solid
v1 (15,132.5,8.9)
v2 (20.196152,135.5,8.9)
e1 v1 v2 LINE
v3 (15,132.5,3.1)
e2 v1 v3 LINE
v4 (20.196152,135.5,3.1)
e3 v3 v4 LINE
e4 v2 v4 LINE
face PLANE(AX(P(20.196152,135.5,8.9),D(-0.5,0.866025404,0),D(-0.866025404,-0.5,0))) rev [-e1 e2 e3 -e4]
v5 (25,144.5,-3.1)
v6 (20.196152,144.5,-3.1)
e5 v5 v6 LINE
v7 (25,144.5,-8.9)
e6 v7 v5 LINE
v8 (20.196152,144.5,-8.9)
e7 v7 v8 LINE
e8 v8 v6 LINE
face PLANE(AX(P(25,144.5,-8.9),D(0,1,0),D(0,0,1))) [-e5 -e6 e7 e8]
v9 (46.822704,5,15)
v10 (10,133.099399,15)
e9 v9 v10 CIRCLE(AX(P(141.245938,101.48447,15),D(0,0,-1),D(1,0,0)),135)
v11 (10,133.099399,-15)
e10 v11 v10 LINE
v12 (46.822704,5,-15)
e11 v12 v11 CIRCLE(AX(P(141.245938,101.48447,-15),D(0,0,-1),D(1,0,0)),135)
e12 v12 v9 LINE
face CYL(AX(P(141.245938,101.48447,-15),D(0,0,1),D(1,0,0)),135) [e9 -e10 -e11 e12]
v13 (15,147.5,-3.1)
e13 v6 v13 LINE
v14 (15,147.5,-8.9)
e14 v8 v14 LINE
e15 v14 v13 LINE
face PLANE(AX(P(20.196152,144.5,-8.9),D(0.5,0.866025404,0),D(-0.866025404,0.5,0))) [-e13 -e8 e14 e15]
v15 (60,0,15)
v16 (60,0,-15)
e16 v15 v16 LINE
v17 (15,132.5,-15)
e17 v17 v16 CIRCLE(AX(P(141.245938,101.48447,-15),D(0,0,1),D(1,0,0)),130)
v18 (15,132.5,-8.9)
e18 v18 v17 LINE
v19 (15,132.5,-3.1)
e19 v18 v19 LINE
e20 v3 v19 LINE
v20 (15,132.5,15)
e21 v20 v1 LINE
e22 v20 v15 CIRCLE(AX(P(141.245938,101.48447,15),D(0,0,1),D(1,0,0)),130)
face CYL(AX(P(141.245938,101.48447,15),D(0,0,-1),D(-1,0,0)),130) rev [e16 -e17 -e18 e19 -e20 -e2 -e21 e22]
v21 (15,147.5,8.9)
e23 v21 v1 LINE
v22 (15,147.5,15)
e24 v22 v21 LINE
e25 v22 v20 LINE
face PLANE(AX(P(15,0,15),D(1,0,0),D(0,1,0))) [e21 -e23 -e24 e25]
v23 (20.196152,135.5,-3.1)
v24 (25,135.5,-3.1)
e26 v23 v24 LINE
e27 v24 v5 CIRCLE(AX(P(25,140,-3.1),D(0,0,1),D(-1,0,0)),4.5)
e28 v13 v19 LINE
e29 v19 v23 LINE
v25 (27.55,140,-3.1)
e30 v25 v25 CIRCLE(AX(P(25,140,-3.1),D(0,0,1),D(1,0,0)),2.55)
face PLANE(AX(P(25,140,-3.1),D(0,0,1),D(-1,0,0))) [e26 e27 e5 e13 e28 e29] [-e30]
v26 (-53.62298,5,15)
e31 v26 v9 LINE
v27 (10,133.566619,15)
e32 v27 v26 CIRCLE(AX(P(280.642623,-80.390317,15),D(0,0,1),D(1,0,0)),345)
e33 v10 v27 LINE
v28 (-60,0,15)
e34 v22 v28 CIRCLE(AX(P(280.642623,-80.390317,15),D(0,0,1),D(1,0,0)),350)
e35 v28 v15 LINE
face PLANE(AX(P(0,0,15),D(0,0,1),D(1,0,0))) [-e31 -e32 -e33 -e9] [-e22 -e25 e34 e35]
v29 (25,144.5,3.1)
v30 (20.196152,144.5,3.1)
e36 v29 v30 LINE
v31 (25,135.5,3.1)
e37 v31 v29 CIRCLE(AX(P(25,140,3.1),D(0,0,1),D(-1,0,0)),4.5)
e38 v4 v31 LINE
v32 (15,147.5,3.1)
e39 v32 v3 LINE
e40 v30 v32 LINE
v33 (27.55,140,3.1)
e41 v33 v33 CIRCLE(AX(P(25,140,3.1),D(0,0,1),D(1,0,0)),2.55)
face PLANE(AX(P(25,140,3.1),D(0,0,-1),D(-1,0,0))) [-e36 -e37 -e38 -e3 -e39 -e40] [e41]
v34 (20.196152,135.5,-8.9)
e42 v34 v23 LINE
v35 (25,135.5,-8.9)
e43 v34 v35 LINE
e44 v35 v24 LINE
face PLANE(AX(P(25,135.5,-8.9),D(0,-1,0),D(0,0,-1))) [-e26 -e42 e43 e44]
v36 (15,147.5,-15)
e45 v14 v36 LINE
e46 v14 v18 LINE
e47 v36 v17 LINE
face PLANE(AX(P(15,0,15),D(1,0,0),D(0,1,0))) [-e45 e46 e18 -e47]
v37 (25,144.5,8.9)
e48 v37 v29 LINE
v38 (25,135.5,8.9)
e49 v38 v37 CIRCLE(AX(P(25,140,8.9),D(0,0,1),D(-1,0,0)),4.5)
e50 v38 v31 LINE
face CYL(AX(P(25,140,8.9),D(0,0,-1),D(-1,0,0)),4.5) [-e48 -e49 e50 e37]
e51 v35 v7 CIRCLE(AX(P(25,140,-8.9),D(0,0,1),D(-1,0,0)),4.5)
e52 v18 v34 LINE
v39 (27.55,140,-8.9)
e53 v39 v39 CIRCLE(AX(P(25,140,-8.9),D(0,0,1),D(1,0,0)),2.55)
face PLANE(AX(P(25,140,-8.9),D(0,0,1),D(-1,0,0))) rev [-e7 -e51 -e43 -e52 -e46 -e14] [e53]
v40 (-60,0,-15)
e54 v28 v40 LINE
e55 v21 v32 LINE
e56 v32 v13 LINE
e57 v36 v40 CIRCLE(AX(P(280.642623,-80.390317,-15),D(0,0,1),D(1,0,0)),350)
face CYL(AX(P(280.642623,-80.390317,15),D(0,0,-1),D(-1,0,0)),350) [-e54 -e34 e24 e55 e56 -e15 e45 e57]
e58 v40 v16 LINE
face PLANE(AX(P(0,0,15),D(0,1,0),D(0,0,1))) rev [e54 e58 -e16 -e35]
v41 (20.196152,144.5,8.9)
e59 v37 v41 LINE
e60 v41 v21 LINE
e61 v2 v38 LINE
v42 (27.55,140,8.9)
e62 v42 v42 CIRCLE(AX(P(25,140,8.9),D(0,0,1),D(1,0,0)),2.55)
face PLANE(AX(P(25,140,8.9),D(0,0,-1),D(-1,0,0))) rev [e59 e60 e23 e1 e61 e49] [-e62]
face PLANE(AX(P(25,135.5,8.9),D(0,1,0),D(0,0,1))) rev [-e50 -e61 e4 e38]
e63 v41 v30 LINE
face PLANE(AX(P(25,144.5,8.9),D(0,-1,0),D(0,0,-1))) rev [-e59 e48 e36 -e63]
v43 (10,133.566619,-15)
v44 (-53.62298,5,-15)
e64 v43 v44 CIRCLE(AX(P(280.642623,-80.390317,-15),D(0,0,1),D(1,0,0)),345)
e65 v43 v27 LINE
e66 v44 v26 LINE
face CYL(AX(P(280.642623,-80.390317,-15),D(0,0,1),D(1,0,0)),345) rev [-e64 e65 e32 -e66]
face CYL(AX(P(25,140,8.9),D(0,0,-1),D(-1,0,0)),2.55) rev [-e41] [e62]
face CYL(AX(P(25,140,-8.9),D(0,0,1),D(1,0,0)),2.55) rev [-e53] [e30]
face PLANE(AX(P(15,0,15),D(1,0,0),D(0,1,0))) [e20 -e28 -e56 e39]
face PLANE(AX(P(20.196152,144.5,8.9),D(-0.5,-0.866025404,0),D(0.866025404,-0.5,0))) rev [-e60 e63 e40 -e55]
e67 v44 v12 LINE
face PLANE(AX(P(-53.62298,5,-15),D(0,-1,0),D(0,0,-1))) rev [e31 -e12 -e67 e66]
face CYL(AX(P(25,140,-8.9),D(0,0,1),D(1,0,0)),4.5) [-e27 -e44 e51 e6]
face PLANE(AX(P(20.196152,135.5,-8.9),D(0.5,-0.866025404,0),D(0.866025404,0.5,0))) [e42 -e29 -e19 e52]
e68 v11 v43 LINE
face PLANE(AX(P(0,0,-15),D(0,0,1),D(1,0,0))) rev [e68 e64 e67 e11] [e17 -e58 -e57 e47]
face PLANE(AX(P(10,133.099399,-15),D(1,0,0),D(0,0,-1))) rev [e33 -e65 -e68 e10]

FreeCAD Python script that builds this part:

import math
import FreeCAD as App
import Part
import Sketcher
from FreeCAD import Vector
Q = App.Units.Quantity

doc = App.newDocument("Part")
body = doc.addObject("PartDesign::Body", "Body")

sketch1 = body.newObject("Sketcher::SketchObject", "Sketch")
sketch1.AttachmentSupport = (doc.getObject("XY_Plane"), [""])
sketch1.MapMode = "FlatFace"
sketch1.addGeometry([
    Part.LineSegment(Vector(-60, 0, 0), Vector(60, 0, 0)),
    Part.ArcOfCircle(Part.Circle(Vector(141, 101, 0), Vector(0, 0, 1), 130), math.radians(166), math.radians(231)),
    Part.LineSegment(Vector(15, 132, 0), Vector(15, 148, 0)),
    Part.ArcOfCircle(Part.Circle(Vector(281, -80, 0), Vector(0, 0, 1), 350), math.radians(139), math.radians(167)),
], False)
sketch1.addConstraint([
    Sketcher.Constraint("Coincident", 0, 2, 1, 2),
    Sketcher.Constraint("Coincident", 1, 1, 2, 1),
    Sketcher.Constraint("Coincident", 2, 2, 3, 1),
    Sketcher.Constraint("Coincident", 3, 2, 0, 1),
    Sketcher.Constraint("Horizontal", 0),
    Sketcher.Constraint("Vertical", 2),
    Sketcher.Constraint("Symmetric", 0, 2, 3, 2, -1, 1),
    Sketcher.Constraint("Radius", 1, Q("130 mm")),
    Sketcher.Constraint("Radius", 3, Q("350 mm")),
    Sketcher.Constraint("DistanceX", 0, 1, 0, 2, Q("120 mm")),
    Sketcher.Constraint("DistanceY", 2, 1, 2, 2, Q("15 mm")),
    Sketcher.Constraint("DistanceX", -1, 1, 1, 1, Q("15 mm")),
    Sketcher.Constraint("DistanceY", -1, 1, 1, 1, Q("132.5 mm")),
])
pad1 = body.newObject("PartDesign::Pad", "Pad")
pad1.Profile = sketch1
pad1.Length = 30
pad1.Midplane = True

sketch2 = body.newObject("Sketcher::SketchObject", "Sketch001")
sketch2.AttachmentSupport = (doc.getObject("XY_Plane"), [""])
sketch2.MapMode = "FlatFace"
sketch2.AttachmentOffset = App.Placement(Vector(0, 0, 15), App.Rotation())
sketch2.addGeometry([
    Part.LineSegment(Vector(10, 133.1, 0), Vector(10, 133.57, 0)),
    Part.ArcOfCircle(Part.Circle(Vector(280.64, -80.39, 0), Vector(0, 0, 1), 345), math.radians(142), math.radians(166)),
    Part.LineSegment(Vector(-53.62, 5, 0), Vector(46.82, 5, 0)),
    Part.ArcOfCircle(Part.Circle(Vector(141.25, 101.48, 0), Vector(0, 0, 1), 135), math.radians(166), math.radians(226)),
], False)
sketch2.addConstraint([
    Sketcher.Constraint("Coincident", 0, 2, 1, 1),
    Sketcher.Constraint("Coincident", 1, 2, 2, 1),
    Sketcher.Constraint("Coincident", 2, 2, 3, 2),
    Sketcher.Constraint("Coincident", 3, 1, 0, 1),
    Sketcher.Constraint("Vertical", 0),
    Sketcher.Constraint("Horizontal", 2),
    Sketcher.Constraint("Radius", 1, Q("345 mm")),
    Sketcher.Constraint("Radius", 3, Q("135 mm")),
    Sketcher.Constraint("DistanceX", -1, 1, 0, 2, Q("10 mm")),
    Sketcher.Constraint("DistanceY", -1, 1, 2, 2, Q("5 mm")),
    Sketcher.Constraint("DistanceY", 0, 1, 0, 2, Q("0.46722 mm")),
    Sketcher.Constraint("DistanceY", -1, 1, 3, 1, Q("133.099399 mm")),
    Sketcher.Constraint("DistanceX", 2, 1, 2, 2, Q("100.445684 mm")),
    Sketcher.Constraint("DistanceX", -1, 1, 3, 3, Q("141.245938 mm")),
])
pocket1 = body.newObject("PartDesign::Pocket", "Pocket")
pocket1.Profile = sketch2
pocket1.Type = "ThroughAll"

sketch3 = body.newObject("Sketcher::SketchObject", "Sketch002")
sketch3.AttachmentSupport = (doc.getObject("XY_Plane"), [""])
sketch3.MapMode = "FlatFace"
sketch3.AttachmentOffset = App.Placement(Vector(0, 0, 3.1), App.Rotation())
sketch3.addGeometry([
    Part.LineSegment(Vector(20.2, 135.5, 0), Vector(25, 135.5, 0)),
    Part.ArcOfCircle(Part.Circle(Vector(25, 140, 0), Vector(0, 0, 1), 4.5), math.radians(-90), math.radians(90)),
    Part.LineSegment(Vector(25, 144.5, 0), Vector(20.2, 144.5, 0)),
    Part.LineSegment(Vector(20.2, 144.5, 0), Vector(15, 147.5, 0)),
    Part.LineSegment(Vector(15, 147.5, 0), Vector(15, 132.5, 0)),
    Part.LineSegment(Vector(15, 132.5, 0), Vector(20.2, 135.5, 0)),
    Part.Circle(Vector(25, 140, 0), Vector(0, 0, 1), 2.5),
], False)
sketch3.addConstraint([
    Sketcher.Constraint("Tangent", 0, 2, 1, 1),
    Sketcher.Constraint("Tangent", 1, 2, 2, 1),
    Sketcher.Constraint("Coincident", 2, 2, 3, 1),
    Sketcher.Constraint("Coincident", 3, 2, 4, 1),
    Sketcher.Constraint("Coincident", 4, 2, 5, 1),
    Sketcher.Constraint("Coincident", 5, 2, 0, 1),
    Sketcher.Constraint("Horizontal", 0),
    Sketcher.Constraint("Horizontal", 2),
    Sketcher.Constraint("Vertical", 4),
    Sketcher.Constraint("Coincident", 6, 3, 1, 3),
    Sketcher.Constraint("Vertical", 2, 2, 5, 2),
    Sketcher.Constraint("Equal", 3, 5),
    Sketcher.Constraint("Diameter", 6, Q("5.1 mm")),
    Sketcher.Constraint("Radius", 1, Q("4.5 mm")),
    Sketcher.Constraint("DistanceY", 4, 2, 4, 1, Q("15 mm")),
    Sketcher.Constraint("Angle", 3, Q("150 deg")),
    Sketcher.Constraint("DistanceX", -1, 1, 1, 3, Q("25 mm")),
    Sketcher.Constraint("DistanceY", -1, 1, 1, 3, Q("140 mm")),
    Sketcher.Constraint("DistanceX", -1, 1, 3, 2, Q("15 mm")),
])
pad2 = body.newObject("PartDesign::Pad", "Pad001")
pad2.Profile = sketch3
pad2.Length = 5.8
doc.recompute()

mirrored = body.newObject("PartDesign::Mirrored", "Mirrored")
mirrored.Originals = [pad2]
mirrored.MirrorPlane = (doc.getObject("XY_Plane"), [""])
body.Tip = mirrored

doc.recompute()
